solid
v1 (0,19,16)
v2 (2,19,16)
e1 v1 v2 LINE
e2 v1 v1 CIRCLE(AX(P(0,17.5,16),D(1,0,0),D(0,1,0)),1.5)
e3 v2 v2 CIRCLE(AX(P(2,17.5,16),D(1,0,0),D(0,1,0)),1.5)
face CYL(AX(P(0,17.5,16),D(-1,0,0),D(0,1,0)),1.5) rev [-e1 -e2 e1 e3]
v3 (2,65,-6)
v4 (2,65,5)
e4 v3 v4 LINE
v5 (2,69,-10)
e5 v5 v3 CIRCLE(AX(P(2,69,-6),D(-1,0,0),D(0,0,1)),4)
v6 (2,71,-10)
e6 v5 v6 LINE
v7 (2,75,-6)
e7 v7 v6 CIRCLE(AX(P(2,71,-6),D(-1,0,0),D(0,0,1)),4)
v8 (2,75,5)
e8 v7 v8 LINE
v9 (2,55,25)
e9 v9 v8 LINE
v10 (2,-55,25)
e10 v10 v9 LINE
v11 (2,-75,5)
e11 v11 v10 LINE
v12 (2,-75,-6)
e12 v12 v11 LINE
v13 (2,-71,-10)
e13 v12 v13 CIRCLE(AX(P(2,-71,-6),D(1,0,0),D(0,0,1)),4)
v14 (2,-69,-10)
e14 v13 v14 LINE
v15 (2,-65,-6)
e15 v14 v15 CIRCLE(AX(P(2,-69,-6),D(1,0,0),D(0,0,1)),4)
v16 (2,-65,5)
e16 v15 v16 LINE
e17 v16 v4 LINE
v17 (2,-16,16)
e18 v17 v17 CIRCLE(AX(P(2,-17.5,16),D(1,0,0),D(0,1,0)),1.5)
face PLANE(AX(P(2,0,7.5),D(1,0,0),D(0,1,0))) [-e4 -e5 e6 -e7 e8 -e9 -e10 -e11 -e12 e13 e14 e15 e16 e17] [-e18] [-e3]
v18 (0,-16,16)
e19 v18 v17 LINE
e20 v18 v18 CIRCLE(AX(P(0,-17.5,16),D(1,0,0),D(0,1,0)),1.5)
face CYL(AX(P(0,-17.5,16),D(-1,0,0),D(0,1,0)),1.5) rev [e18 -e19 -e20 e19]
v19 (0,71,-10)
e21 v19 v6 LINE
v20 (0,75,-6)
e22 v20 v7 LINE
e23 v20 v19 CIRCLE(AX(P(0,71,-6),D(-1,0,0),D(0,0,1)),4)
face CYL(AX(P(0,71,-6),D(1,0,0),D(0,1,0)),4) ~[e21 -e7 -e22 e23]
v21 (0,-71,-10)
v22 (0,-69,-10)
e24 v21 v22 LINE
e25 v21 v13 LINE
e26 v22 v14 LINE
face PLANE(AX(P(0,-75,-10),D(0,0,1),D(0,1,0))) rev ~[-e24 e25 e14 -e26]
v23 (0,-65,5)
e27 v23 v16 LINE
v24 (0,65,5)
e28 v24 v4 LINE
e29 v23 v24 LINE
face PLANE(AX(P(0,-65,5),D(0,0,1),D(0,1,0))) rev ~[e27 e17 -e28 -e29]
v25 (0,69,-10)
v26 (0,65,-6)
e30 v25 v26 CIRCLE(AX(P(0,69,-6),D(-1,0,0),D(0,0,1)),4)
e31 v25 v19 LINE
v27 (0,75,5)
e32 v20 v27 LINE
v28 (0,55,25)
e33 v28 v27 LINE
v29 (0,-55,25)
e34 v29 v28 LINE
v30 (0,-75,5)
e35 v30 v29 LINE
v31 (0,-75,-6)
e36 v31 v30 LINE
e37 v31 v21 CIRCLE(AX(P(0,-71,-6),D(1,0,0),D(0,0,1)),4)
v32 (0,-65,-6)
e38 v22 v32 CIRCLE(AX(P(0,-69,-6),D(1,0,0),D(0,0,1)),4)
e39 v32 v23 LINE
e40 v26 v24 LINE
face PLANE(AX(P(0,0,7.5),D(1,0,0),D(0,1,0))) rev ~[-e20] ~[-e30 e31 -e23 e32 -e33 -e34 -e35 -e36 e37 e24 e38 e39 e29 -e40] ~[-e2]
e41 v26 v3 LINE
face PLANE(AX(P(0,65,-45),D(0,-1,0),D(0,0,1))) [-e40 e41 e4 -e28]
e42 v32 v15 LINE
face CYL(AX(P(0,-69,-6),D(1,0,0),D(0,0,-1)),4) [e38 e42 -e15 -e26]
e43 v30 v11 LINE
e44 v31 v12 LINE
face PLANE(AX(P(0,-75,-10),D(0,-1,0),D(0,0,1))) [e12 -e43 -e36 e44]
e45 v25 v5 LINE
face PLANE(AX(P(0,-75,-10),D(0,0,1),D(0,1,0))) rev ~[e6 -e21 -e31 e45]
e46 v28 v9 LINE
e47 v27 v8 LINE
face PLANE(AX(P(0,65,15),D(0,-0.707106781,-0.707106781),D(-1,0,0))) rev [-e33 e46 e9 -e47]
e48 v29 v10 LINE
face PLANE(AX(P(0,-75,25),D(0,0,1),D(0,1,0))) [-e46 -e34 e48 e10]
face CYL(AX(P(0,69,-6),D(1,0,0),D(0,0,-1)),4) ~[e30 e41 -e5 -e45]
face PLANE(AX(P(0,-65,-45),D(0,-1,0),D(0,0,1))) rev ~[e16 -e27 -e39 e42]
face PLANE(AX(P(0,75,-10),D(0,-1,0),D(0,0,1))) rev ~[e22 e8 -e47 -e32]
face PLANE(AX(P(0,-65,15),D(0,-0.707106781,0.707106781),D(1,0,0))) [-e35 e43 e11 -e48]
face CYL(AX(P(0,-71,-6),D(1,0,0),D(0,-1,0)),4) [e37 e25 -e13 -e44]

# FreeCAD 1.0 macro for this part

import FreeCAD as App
import Part
import Sketcher


def edges_at(feature, points):
    """Names of the edges that pass closest to the given points."""
    edges = feature.Shape.Edges
    near = lambda p: min(range(len(edges)), key=lambda i: edges[i].distToShape(Part.Vertex(*p))[0])
    return sorted({f"Edge{near(p) + 1}" for p in points})


def add_polygon(sketch, points):
    """Adds a closed chain of lines whose ends are joined by coincident constraints."""
    first, n = sketch.GeometryCount, len(points)
    for a, b in zip(points, points[1:] + points[:1]):
        sketch.addGeometry(Part.LineSegment(App.Vector(*a, 0), App.Vector(*b, 0)), False)
    for i in range(n):
        sketch.addConstraint(Sketcher.Constraint("Coincident", first + i, 2, first + (i + 1) % n, 1))

doc = App.newDocument("Part")
body = doc.addObject("PartDesign::Body", "Body")

# Sketch on YZ plane
sketch1 = body.newObject("Sketcher::SketchObject", "Sketch")
sketch1.AttachmentSupport = (doc.getObject("YZ_Plane"), [""])
sketch1.MapMode = "FlatFace"
add_polygon(sketch1, [(-75, 25), (-75, -10), (75, -10), (75, 25)])  # lines 0-3
sketch1.addConstraint([
    Sketcher.Constraint("Vertical", 0),
    Sketcher.Constraint("Horizontal", 1),
    Sketcher.Constraint("Vertical", 2),
    Sketcher.Constraint("Horizontal", 3),
    Sketcher.Constraint("DistanceX", 1, 1, 1, 2, 150.0),
    Sketcher.Constraint("DistanceY", 0, 2, 0, 1, 35.0),
    Sketcher.Constraint("DistanceX", 0, 2, -1, 1, 75.0),
    Sketcher.Constraint("DistanceY", 0, 2, -1, 1, 10.0),
])
pad1 = body.newObject("PartDesign::Pad", "Pad")
pad1.Profile = sketch1
pad1.Length = 2

# Sketch on YZ plane
sketch2 = body.newObject("Sketcher::SketchObject", "Sketch001")
sketch2.AttachmentSupport = (doc.getObject("YZ_Plane"), [""])
sketch2.MapMode = "FlatFace"
add_polygon(sketch2, [(-65, 5), (-65, -45), (65, -45), (65, 5)])  # lines 0-3
sketch2.addConstraint([
    Sketcher.Constraint("Vertical", 0),
    Sketcher.Constraint("Horizontal", 1),
    Sketcher.Constraint("Vertical", 2),
    Sketcher.Constraint("Horizontal", 3),
    Sketcher.Constraint("DistanceX", 1, 1, 1, 2, 130.0),
    Sketcher.Constraint("DistanceY", 0, 2, 0, 1, 50.0),
    Sketcher.Constraint("DistanceX", 0, 2, -1, 1, 65.0),
    Sketcher.Constraint("DistanceY", 0, 2, -1, 1, 45.0),
])
pocket1 = body.newObject("PartDesign::Pocket", "Pocket")
pocket1.Profile = sketch2
pocket1.Length = 2
pocket1.Reversed = True
doc.recompute()

fillet = body.newObject("PartDesign::Fillet", "Fillet")
fillet.Base = (pocket1, edges_at(pocket1, [
    (1, -65, -10),
    (1, -75, -10),
    (1, 65, -10),
    (1, 75, -10),
]))
fillet.Radius = 4

# Sketch on YZ plane
sketch3 = body.newObject("Sketcher::SketchObject", "Sketch002")
sketch3.AttachmentSupport = (doc.getObject("YZ_Plane"), [""])
sketch3.MapMode = "FlatFace"
sketch3.addGeometry([
    Part.Circle(App.Vector(17.5, 16, 0), App.Vector(0, 0, 1), 1.5),
    Part.Circle(App.Vector(-17.5, 16, 0), App.Vector(0, 0, 1), 1.5),
], False)
sketch3.addConstraint([
    Sketcher.Constraint("Equal", 0, 1),
    Sketcher.Constraint("Symmetric", 0, 3, 1, 3, -2),
    Sketcher.Constraint("Diameter", 0, 3.0),
    Sketcher.Constraint("DistanceY", -1, 1, 0, 3, 16.0),
    Sketcher.Constraint("DistanceX", 1, 3, 0, 3, 35.0),
])
pocket2 = body.newObject("PartDesign::Pocket", "Pocket001")
pocket2.Profile = sketch3
pocket2.Length = 2
pocket2.Reversed = True
doc.recompute()

chamfer = body.newObject("PartDesign::Chamfer", "Chamfer")
chamfer.Base = (pocket2, edges_at(pocket2, [(1, -75, 25), (1, 75, 25)]))
chamfer.Size = 20

doc.recompute()
